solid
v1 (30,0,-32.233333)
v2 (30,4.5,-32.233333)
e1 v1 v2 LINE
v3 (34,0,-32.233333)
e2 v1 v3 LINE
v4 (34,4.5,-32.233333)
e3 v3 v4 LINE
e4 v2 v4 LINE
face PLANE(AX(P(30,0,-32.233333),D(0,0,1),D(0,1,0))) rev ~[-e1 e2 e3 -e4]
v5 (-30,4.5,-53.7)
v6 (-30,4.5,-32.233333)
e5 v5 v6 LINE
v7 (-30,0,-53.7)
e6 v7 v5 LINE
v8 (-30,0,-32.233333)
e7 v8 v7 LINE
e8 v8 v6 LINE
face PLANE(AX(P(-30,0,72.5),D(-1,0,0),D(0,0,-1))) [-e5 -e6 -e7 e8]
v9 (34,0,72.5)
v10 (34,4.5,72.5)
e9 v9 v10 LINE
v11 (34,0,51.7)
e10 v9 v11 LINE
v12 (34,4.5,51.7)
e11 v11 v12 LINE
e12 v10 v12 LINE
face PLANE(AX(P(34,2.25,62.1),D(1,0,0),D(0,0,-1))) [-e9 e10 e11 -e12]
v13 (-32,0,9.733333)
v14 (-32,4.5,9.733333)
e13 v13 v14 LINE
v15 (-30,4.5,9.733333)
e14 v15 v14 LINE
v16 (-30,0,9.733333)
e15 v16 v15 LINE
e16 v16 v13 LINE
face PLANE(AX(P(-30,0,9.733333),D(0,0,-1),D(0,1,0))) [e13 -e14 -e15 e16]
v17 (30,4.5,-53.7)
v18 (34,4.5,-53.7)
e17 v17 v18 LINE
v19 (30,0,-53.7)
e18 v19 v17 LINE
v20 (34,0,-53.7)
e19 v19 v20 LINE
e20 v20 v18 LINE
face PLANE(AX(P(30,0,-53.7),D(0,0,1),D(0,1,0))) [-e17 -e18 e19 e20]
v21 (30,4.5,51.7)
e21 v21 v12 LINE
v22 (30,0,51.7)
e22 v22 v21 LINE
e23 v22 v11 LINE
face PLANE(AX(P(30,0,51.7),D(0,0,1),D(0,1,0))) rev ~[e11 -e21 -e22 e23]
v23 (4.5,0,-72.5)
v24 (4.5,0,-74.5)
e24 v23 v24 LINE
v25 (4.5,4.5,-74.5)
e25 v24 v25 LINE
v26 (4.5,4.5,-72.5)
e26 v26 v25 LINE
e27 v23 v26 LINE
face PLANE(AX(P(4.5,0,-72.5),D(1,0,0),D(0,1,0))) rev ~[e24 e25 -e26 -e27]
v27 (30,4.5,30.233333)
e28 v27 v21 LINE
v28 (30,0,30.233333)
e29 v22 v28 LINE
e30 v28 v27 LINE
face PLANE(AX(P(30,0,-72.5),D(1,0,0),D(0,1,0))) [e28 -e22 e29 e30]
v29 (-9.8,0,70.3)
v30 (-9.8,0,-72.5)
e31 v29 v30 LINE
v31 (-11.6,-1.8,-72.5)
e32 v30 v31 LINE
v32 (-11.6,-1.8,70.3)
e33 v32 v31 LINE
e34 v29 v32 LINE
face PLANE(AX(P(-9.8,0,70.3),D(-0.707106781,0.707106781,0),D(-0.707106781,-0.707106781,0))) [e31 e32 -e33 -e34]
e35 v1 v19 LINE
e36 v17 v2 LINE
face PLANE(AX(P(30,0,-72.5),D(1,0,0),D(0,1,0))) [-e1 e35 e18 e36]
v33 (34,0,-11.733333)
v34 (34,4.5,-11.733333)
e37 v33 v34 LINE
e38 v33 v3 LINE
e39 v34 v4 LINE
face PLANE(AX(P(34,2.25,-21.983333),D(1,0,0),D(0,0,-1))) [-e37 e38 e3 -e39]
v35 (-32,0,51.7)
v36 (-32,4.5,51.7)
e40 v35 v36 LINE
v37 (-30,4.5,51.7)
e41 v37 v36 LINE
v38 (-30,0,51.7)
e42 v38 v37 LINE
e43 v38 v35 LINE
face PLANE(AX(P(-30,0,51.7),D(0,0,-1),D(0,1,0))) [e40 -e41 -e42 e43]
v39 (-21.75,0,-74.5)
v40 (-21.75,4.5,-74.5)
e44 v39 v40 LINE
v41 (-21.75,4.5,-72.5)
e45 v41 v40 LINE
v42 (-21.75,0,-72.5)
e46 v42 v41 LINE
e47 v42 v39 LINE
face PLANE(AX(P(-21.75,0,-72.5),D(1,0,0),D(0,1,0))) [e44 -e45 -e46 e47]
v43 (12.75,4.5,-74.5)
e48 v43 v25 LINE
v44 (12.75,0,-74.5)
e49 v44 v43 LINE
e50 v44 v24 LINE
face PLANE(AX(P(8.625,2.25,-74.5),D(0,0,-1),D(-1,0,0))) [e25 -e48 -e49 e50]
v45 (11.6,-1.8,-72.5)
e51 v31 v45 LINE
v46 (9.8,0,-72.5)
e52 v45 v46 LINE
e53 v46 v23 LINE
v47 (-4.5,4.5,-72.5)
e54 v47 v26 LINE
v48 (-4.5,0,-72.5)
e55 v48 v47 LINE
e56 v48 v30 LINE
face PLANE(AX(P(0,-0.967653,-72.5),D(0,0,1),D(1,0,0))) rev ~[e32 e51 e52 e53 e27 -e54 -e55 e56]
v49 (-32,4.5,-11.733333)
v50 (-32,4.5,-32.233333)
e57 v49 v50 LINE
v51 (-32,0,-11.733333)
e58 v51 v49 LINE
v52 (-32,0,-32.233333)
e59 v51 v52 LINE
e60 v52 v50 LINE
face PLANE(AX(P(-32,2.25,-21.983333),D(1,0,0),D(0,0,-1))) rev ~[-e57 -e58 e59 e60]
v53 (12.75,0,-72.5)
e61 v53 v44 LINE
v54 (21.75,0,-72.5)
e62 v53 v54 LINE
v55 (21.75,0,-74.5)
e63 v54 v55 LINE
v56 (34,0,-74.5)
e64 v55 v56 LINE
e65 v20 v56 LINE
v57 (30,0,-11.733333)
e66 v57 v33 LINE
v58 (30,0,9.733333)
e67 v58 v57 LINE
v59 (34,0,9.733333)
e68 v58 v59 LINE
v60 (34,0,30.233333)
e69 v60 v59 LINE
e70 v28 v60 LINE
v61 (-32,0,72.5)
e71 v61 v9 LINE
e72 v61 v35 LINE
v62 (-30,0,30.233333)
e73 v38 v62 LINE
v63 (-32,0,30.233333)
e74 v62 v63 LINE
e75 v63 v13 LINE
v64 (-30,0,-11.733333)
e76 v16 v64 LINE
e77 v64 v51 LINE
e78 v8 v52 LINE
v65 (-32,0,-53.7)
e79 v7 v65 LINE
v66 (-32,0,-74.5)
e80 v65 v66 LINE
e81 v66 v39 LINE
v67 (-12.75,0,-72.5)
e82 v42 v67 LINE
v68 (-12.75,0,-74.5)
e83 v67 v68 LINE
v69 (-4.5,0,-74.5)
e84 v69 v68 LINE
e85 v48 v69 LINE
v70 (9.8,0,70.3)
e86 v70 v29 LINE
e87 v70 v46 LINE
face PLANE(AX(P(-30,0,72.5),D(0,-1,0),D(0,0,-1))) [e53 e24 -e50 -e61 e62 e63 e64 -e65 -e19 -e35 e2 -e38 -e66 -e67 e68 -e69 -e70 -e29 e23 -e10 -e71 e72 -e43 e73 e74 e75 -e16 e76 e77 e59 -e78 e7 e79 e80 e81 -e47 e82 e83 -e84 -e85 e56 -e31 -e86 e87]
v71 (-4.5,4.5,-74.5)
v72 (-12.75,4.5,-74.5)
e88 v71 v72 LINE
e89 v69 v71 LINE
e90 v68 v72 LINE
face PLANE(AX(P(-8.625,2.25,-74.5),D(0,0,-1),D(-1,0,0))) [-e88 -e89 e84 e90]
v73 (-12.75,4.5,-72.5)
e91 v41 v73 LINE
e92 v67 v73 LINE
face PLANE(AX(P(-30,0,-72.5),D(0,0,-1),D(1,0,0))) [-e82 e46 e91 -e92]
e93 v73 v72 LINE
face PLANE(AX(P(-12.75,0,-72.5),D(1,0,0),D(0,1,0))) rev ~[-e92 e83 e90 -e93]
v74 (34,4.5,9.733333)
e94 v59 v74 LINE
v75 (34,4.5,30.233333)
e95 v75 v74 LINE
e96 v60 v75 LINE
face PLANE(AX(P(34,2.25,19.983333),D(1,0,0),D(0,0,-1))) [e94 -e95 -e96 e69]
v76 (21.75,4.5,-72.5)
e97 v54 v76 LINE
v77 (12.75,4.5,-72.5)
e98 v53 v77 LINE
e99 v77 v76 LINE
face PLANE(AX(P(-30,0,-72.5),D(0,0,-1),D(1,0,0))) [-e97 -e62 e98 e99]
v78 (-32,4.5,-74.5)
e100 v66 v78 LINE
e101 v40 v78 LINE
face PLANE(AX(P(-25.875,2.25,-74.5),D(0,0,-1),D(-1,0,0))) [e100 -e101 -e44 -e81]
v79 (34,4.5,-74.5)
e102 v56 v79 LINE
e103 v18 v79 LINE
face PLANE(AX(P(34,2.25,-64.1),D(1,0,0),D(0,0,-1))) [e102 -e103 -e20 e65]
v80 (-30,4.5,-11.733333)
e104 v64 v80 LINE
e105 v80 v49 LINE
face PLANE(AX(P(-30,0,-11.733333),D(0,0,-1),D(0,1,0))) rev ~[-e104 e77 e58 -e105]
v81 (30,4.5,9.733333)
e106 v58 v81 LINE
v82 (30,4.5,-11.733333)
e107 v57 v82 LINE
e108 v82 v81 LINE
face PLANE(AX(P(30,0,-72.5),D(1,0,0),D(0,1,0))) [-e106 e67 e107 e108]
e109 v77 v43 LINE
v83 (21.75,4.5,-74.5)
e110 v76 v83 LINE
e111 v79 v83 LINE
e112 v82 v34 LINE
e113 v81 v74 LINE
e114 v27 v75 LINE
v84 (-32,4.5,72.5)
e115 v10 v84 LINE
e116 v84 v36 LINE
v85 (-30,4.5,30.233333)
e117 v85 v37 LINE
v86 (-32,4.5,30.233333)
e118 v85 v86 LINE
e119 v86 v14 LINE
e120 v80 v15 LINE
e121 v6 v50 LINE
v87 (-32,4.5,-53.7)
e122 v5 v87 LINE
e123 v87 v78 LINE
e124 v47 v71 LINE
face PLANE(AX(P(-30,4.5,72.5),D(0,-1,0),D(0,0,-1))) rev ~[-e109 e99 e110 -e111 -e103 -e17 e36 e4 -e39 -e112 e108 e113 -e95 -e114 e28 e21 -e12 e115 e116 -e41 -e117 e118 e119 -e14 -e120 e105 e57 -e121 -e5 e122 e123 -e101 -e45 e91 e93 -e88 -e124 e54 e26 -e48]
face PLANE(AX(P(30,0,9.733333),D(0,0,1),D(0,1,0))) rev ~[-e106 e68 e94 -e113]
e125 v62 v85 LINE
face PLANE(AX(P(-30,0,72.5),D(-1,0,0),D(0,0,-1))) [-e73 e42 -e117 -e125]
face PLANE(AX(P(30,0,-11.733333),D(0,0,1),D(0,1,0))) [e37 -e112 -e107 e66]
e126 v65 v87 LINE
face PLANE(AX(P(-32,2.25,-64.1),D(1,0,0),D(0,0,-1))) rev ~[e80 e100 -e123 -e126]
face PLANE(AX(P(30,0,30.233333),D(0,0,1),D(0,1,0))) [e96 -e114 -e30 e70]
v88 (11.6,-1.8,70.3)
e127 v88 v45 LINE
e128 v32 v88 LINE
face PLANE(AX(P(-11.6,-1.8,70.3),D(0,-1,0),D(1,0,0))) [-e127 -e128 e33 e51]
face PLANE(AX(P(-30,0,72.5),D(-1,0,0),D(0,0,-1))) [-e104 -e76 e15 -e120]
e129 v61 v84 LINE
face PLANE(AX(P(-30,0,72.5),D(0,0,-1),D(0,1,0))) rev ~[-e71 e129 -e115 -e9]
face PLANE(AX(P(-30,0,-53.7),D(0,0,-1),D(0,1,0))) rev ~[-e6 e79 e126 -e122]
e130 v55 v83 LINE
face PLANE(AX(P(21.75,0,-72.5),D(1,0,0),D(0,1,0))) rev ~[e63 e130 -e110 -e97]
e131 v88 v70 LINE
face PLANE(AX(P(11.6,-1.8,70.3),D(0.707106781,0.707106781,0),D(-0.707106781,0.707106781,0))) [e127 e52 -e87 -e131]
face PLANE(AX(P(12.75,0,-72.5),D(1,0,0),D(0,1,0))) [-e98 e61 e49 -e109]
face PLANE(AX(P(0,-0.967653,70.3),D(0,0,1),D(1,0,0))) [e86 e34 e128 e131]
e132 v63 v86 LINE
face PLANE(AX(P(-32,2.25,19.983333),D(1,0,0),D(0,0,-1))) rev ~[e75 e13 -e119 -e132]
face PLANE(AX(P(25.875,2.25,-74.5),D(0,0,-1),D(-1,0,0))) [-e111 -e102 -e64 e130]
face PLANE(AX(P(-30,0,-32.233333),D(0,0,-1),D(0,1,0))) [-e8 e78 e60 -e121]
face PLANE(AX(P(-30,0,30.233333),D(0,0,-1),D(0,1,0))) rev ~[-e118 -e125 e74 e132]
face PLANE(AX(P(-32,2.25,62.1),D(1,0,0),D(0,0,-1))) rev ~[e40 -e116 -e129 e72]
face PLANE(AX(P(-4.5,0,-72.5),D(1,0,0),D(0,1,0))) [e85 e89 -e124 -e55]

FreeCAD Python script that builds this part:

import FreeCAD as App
import Part
import Sketcher
from FreeCAD import Vector
Q = App.Units.Quantity

doc = App.newDocument("Part")
body = doc.addObject("PartDesign::Body", "Body")

sketch1 = body.newObject("Sketcher::SketchObject", "Sketch")
sketch1.AttachmentSupport = (doc.getObject("XZ_Plane"), [""])
sketch1.MapMode = "FlatFace"
sketch1.addGeometry([
    Part.LineSegment(Vector(-30, -72.5, 0), Vector(-30, 72.5, 0)),
    Part.LineSegment(Vector(-30, 72.5, 0), Vector(30, 72.5, 0)),
    Part.LineSegment(Vector(30, 72.5, 0), Vector(30, -72.5, 0)),
    Part.LineSegment(Vector(30, -72.5, 0), Vector(-30, -72.5, 0)),
], False)
sketch1.addConstraint([
    Sketcher.Constraint("Coincident", 0, 2, 1, 1),
    Sketcher.Constraint("Coincident", 1, 2, 2, 1),
    Sketcher.Constraint("Coincident", 2, 2, 3, 1),
    Sketcher.Constraint("Coincident", 3, 2, 0, 1),
    Sketcher.Constraint("Vertical", 0),
    Sketcher.Constraint("Horizontal", 1),
    Sketcher.Constraint("Vertical", 2),
    Sketcher.Constraint("Horizontal", 3),
    Sketcher.Constraint("Symmetric", 0, 2, 2, 2, -1, 1),
    Sketcher.Constraint("DistanceX", 1, 1, 1, 2, Q("60 mm")),
    Sketcher.Constraint("DistanceY", 0, 1, 0, 2, Q("145 mm")),
])
pad1 = body.newObject("PartDesign::Pad", "Pad")
pad1.Profile = sketch1
pad1.Length = 4.5
pad1.Reversed = True

sketch2 = body.newObject("Sketcher::SketchObject", "Sketch001")
sketch2.AttachmentSupport = (doc.getObject("XY_Plane"), [""])
sketch2.MapMode = "FlatFace"
sketch2.AttachmentOffset = App.Placement(Vector(0, 0, -72.5), App.Rotation())
sketch2.addGeometry([
    Part.LineSegment(Vector(30, 4.5, 0), Vector(30, 0, 0)),
    Part.LineSegment(Vector(30, 0, 0), Vector(21.75, 0, 0)),
    Part.LineSegment(Vector(21.75, 0, 0), Vector(21.75, 4.5, 0)),
    Part.LineSegment(Vector(21.75, 4.5, 0), Vector(30, 4.5, 0)),
    Part.LineSegment(Vector(12.75, 4.5, 0), Vector(12.75, 0, 0)),
    Part.LineSegment(Vector(12.75, 0, 0), Vector(4.5, 0, 0)),
    Part.LineSegment(Vector(4.5, 0, 0), Vector(4.5, 4.5, 0)),
    Part.LineSegment(Vector(4.5, 4.5, 0), Vector(12.75, 4.5, 0)),
    Part.LineSegment(Vector(-4.5, 4.5, 0), Vector(-4.5, 0, 0)),
    Part.LineSegment(Vector(-4.5, 0, 0), Vector(-12.75, 0, 0)),
    Part.LineSegment(Vector(-12.75, 0, 0), Vector(-12.75, 4.5, 0)),
    Part.LineSegment(Vector(-12.75, 4.5, 0), Vector(-4.5, 4.5, 0)),
    Part.LineSegment(Vector(-21.75, 4.5, 0), Vector(-21.75, 0, 0)),
    Part.LineSegment(Vector(-21.75, 0, 0), Vector(-30, 0, 0)),
    Part.LineSegment(Vector(-30, 0, 0), Vector(-30, 4.5, 0)),
    Part.LineSegment(Vector(-30, 4.5, 0), Vector(-21.75, 4.5, 0)),
], False)
sketch2.addConstraint([
    Sketcher.Constraint("Coincident", 0, 2, 1, 1),
    Sketcher.Constraint("Coincident", 1, 2, 2, 1),
    Sketcher.Constraint("Coincident", 2, 2, 3, 1),
    Sketcher.Constraint("Coincident", 3, 2, 0, 1),
    Sketcher.Constraint("Coincident", 4, 2, 5, 1),
    Sketcher.Constraint("Coincident", 5, 2, 6, 1),
    Sketcher.Constraint("Coincident", 6, 2, 7, 1),
    Sketcher.Constraint("Coincident", 7, 2, 4, 1),
    Sketcher.Constraint("Coincident", 8, 2, 9, 1),
    Sketcher.Constraint("Coincident", 9, 2, 10, 1),
    Sketcher.Constraint("Coincident", 10, 2, 11, 1),
    Sketcher.Constraint("Coincident", 11, 2, 8, 1),
    Sketcher.Constraint("Coincident", 12, 2, 13, 1),
    Sketcher.Constraint("Coincident", 13, 2, 14, 1),
    Sketcher.Constraint("Coincident", 14, 2, 15, 1),
    Sketcher.Constraint("Coincident", 15, 2, 12, 1),
    Sketcher.Constraint("Vertical", 0),
    Sketcher.Constraint("Horizontal", 1),
    Sketcher.Constraint("Vertical", 2),
    Sketcher.Constraint("Horizontal", 3),
    Sketcher.Constraint("Vertical", 4),
    Sketcher.Constraint("Horizontal", 5),
    Sketcher.Constraint("Vertical", 6),
    Sketcher.Constraint("Horizontal", 7),
    Sketcher.Constraint("Vertical", 8),
    Sketcher.Constraint("Horizontal", 9),
    Sketcher.Constraint("Vertical", 10),
    Sketcher.Constraint("Horizontal", 11),
    Sketcher.Constraint("Vertical", 12),
    Sketcher.Constraint("Horizontal", 13),
    Sketcher.Constraint("Vertical", 14),
    Sketcher.Constraint("Horizontal", 15),
    Sketcher.Constraint("Symmetric", 5, 2, 8, 2, -1, 1),
    Sketcher.Constraint("Symmetric", 1, 2, 12, 2, -1, 1),
    Sketcher.Constraint("Symmetric", 4, 2, 9, 2, -2),
    Sketcher.Constraint("Symmetric", 0, 2, 13, 2, -2),
    Sketcher.Constraint("Horizontal", 3, 2, 6, 2),
    Sketcher.Constraint("Horizontal", 7, 2, 10, 2),
    Sketcher.Constraint("Horizontal", 11, 2, 14, 2),
    Sketcher.Constraint("Equal", 3, 5),
    Sketcher.Constraint("DistanceY", 0, 2, 0, 1, Q("4.5 mm")),
    Sketcher.Constraint("DistanceX", -1, 1, 0, 2, Q("30 mm")),
    Sketcher.Constraint("DistanceX", 4, 2, 1, 2, Q("9 mm")),
    Sketcher.Constraint("DistanceX", 8, 2, 5, 2, Q("9 mm")),
])
pad2 = body.newObject("PartDesign::Pad", "Pad001")
pad2.Profile = sketch2
pad2.Length = 2
pad2.Reversed = True

sketch3 = body.newObject("Sketcher::SketchObject", "Sketch002")
sketch3.AttachmentSupport = (doc.getObject("YZ_Plane"), [""])
sketch3.MapMode = "FlatFace"
sketch3.AttachmentOffset = App.Placement(Vector(0, 0, 30), App.Rotation())
sketch3.addGeometry([
    Part.LineSegment(Vector(4.5, 72.5, 0), Vector(0, 72.5, 0)),
    Part.LineSegment(Vector(0, 72.5, 0), Vector(0, 51.7, 0)),
    Part.LineSegment(Vector(0, 51.7, 0), Vector(4.5, 51.7, 0)),
    Part.LineSegment(Vector(4.5, 51.7, 0), Vector(4.5, 72.5, 0)),
    Part.LineSegment(Vector(4.5, 30.233333, 0), Vector(0, 30.233333, 0)),
    Part.LineSegment(Vector(0, 30.233333, 0), Vector(0, 9.733333, 0)),
    Part.LineSegment(Vector(0, 9.733333, 0), Vector(4.5, 9.733333, 0)),
    Part.LineSegment(Vector(4.5, 9.733333, 0), Vector(4.5, 30.233333, 0)),
    Part.LineSegment(Vector(4.5, -11.733333, 0), Vector(0, -11.733333, 0)),
    Part.LineSegment(Vector(0, -11.733333, 0), Vector(0, -32.233333, 0)),
    Part.LineSegment(Vector(0, -32.233333, 0), Vector(4.5, -32.233333, 0)),
    Part.LineSegment(Vector(4.5, -32.233333, 0), Vector(4.5, -11.733333, 0)),
    Part.LineSegment(Vector(4.5, -53.7, 0), Vector(0, -53.7, 0)),
    Part.LineSegment(Vector(0, -53.7, 0), Vector(0, -74.5, 0)),
    Part.LineSegment(Vector(0, -74.5, 0), Vector(4.5, -74.5, 0)),
    Part.LineSegment(Vector(4.5, -74.5, 0), Vector(4.5, -53.7, 0)),
], False)
sketch3.addConstraint([
    Sketcher.Constraint("Coincident", 0, 2, 1, 1),
    Sketcher.Constraint("Coincident", 1, 2, 2, 1),
    Sketcher.Constraint("Coincident", 2, 2, 3, 1),
    Sketcher.Constraint("Coincident", 3, 2, 0, 1),
    Sketcher.Constraint("Coincident", 4, 2, 5, 1),
    Sketcher.Constraint("Coincident", 5, 2, 6, 1),
    Sketcher.Constraint("Coincident", 6, 2, 7, 1),
    Sketcher.Constraint("Coincident", 7, 2, 4, 1),
    Sketcher.Constraint("Coincident", 8, 2, 9, 1),
    Sketcher.Constraint("Coincident", 9, 2, 10, 1),
    Sketcher.Constraint("Coincident", 10, 2, 11, 1),
    Sketcher.Constraint("Coincident", 11, 2, 8, 1),
    Sketcher.Constraint("Coincident", 12, 2, 13, 1),
    Sketcher.Constraint("Coincident", 13, 2, 14, 1),
    Sketcher.Constraint("Coincident", 14, 2, 15, 1),
    Sketcher.Constraint("Coincident", 15, 2, 12, 1),
    Sketcher.Constraint("Horizontal", 0),
    Sketcher.Constraint("Vertical", 1),
    Sketcher.Constraint("Horizontal", 2),
    Sketcher.Constraint("Vertical", 3),
    Sketcher.Constraint("Horizontal", 4),
    Sketcher.Constraint("Vertical", 5),
    Sketcher.Constraint("Horizontal", 6),
    Sketcher.Constraint("Vertical", 7),
    Sketcher.Constraint("Horizontal", 8),
    Sketcher.Constraint("Vertical", 9),
    Sketcher.Constraint("Horizontal", 10),
    Sketcher.Constraint("Vertical", 11),
    Sketcher.Constraint("Horizontal", 12),
    Sketcher.Constraint("Vertical", 13),
    Sketcher.Constraint("Horizontal", 14),
    Sketcher.Constraint("Vertical", 15),
    Sketcher.Constraint("PointOnObject", 0, 2, -2),
    Sketcher.Constraint("PointOnObject", 4, 2, -2),
    Sketcher.Constraint("PointOnObject", 8, 2, -2),
    Sketcher.Constraint("PointOnObject", 12, 2, -2),
    Sketcher.Constraint("Vertical", 3, 2, 6, 2),
    Sketcher.Constraint("Vertical", 7, 2, 10, 2),
    Sketcher.Constraint("Vertical", 11, 2, 14, 2),
    Sketcher.Constraint("Equal", 7, 9),
    Sketcher.Constraint("Equal", 3, 13),
    Sketcher.Constraint("DistanceX", 0, 2, 0, 1, Q("4.5 mm")),
    Sketcher.Constraint("DistanceY", 1, 2, 1, 1, Q("20.8 mm")),
    Sketcher.Constraint("DistanceY", 5, 2, 5, 1, Q("20.5 mm")),
    Sketcher.Constraint("DistanceY", -1, 1, 0, 2, Q("72.5 mm")),
    Sketcher.Constraint("DistanceY", 12, 2, -1, 1, Q("53.7 mm")),
    Sketcher.Constraint("DistanceY", -1, 1, 4, 2, Q("30.233333 mm")),
    Sketcher.Constraint("DistanceY", 8, 2, -1, 1, Q("11.733333 mm")),
])
pad3 = body.newObject("PartDesign::Pad", "Pad002")
pad3.Profile = sketch3
pad3.Length = 4

sketch4 = body.newObject("Sketcher::SketchObject", "Sketch003")
sketch4.AttachmentSupport = (doc.getObject("YZ_Plane"), [""])
sketch4.MapMode = "FlatFace"
sketch4.AttachmentOffset = App.Placement(Vector(0, 0, -30), App.Rotation())
sketch4.addGeometry([
    Part.LineSegment(Vector(4.5, 72.5, 0), Vector(0, 72.5, 0)),
    Part.LineSegment(Vector(0, 72.5, 0), Vector(0, 51.7, 0)),
    Part.LineSegment(Vector(0, 51.7, 0), Vector(4.5, 51.7, 0)),
    Part.LineSegment(Vector(4.5, 51.7, 0), Vector(4.5, 72.5, 0)),
    Part.LineSegment(Vector(4.5, 30.233333, 0), Vector(0, 30.233333, 0)),
    Part.LineSegment(Vector(0, 30.233333, 0), Vector(0, 9.733333, 0)),
    Part.LineSegment(Vector(0, 9.733333, 0), Vector(4.5, 9.733333, 0)),
    Part.LineSegment(Vector(4.5, 9.733333, 0), Vector(4.5, 30.233333, 0)),
    Part.LineSegment(Vector(4.5, -11.733333, 0), Vector(0, -11.733333, 0)),
    Part.LineSegment(Vector(0, -11.733333, 0), Vector(0, -32.233333, 0)),
    Part.LineSegment(Vector(0, -32.233333, 0), Vector(4.5, -32.233333, 0)),
    Part.LineSegment(Vector(4.5, -32.233333, 0), Vector(4.5, -11.733333, 0)),
    Part.LineSegment(Vector(4.5, -53.7, 0), Vector(0, -53.7, 0)),
    Part.LineSegment(Vector(0, -53.7, 0), Vector(0, -74.5, 0)),
    Part.LineSegment(Vector(0, -74.5, 0), Vector(4.5, -74.5, 0)),
    Part.LineSegment(Vector(4.5, -74.5, 0), Vector(4.5, -53.7, 0)),
], False)
sketch4.addConstraint([
    Sketcher.Constraint("Coincident", 0, 2, 1, 1),
    Sketcher.Constraint("Coincident", 1, 2, 2, 1),
    Sketcher.Constraint("Coincident", 2, 2, 3, 1),
    Sketcher.Constraint("Coincident", 3, 2, 0, 1),
    Sketcher.Constraint("Coincident", 4, 2, 5, 1),
    Sketcher.Constraint("Coincident", 5, 2, 6, 1),
    Sketcher.Constraint("Coincident", 6, 2, 7, 1),
    Sketcher.Constraint("Coincident", 7, 2, 4, 1),
    Sketcher.Constraint("Coincident", 8, 2, 9, 1),
    Sketcher.Constraint("Coincident", 9, 2, 10, 1),
    Sketcher.Constraint("Coincident", 10, 2, 11, 1),
    Sketcher.Constraint("Coincident", 11, 2, 8, 1),
    Sketcher.Constraint("Coincident", 12, 2, 13, 1),
    Sketcher.Constraint("Coincident", 13, 2, 14, 1),
    Sketcher.Constraint("Coincident", 14, 2, 15, 1),
    Sketcher.Constraint("Coincident", 15, 2, 12, 1),
    Sketcher.Constraint("Horizontal", 0),
    Sketcher.Constraint("Vertical", 1),
    Sketcher.Constraint("Horizontal", 2),
    Sketcher.Constraint("Vertical", 3),
    Sketcher.Constraint("Horizontal", 4),
    Sketcher.Constraint("Vertical", 5),
    Sketcher.Constraint("Horizontal", 6),
    Sketcher.Constraint("Vertical", 7),
    Sketcher.Constraint("Horizontal", 8),
    Sketcher.Constraint("Vertical", 9),
    Sketcher.Constraint("Horizontal", 10),
    Sketcher.Constraint("Vertical", 11),
    Sketcher.Constraint("Horizontal", 12),
    Sketcher.Constraint("Vertical", 13),
    Sketcher.Constraint("Horizontal", 14),
    Sketcher.Constraint("Vertical", 15),
    Sketcher.Constraint("PointOnObject", 0, 2, -2),
    Sketcher.Constraint("PointOnObject", 4, 2, -2),
    Sketcher.Constraint("PointOnObject", 8, 2, -2),
    Sketcher.Constraint("PointOnObject", 12, 2, -2),
    Sketcher.Constraint("Vertical", 3, 2, 6, 2),
    Sketcher.Constraint("Vertical", 7, 2, 10, 2),
    Sketcher.Constraint("Vertical", 11, 2, 14, 2),
    Sketcher.Constraint("Equal", 7, 9),
    Sketcher.Constraint("Equal", 3, 13),
    Sketcher.Constraint("DistanceX", 0, 2, 0, 1, Q("4.5 mm")),
    Sketcher.Constraint("DistanceY", 1, 2, 1, 1, Q("20.8 mm")),
    Sketcher.Constraint("DistanceY", 5, 2, 5, 1, Q("20.5 mm")),
    Sketcher.Constraint("DistanceY", -1, 1, 0, 2, Q("72.5 mm")),
    Sketcher.Constraint("DistanceY", 12, 2, -1, 1, Q("53.7 mm")),
    Sketcher.Constraint("DistanceY", -1, 1, 4, 2, Q("30.233333 mm")),
    Sketcher.Constraint("DistanceY", 8, 2, -1, 1, Q("11.733333 mm")),
])
pad4 = body.newObject("PartDesign::Pad", "Pad003")
pad4.Profile = sketch4
pad4.Length = 2
pad4.Reversed = True

sketch5 = body.newObject("Sketcher::SketchObject", "Sketch004")
sketch5.AttachmentSupport = (doc.getObject("XY_Plane"), [""])
sketch5.MapMode = "FlatFace"
sketch5.AttachmentOffset = App.Placement(Vector(0, 0, 70.3), App.Rotation())
sketch5.addGeometry([
    Part.LineSegment(Vector(-9.8, 0, 0), Vector(-11.6, -1.8, 0)),
    Part.LineSegment(Vector(-11.6, -1.8, 0), Vector(11.6, -1.8, 0)),
    Part.LineSegment(Vector(11.6, -1.8, 0), Vector(9.8, 0, 0)),
    Part.LineSegment(Vector(9.8, 0, 0), Vector(-9.8, 0, 0)),
], False)
sketch5.addConstraint([
    Sketcher.Constraint("Coincident", 0, 2, 1, 1),
    Sketcher.Constraint("Coincident", 1, 2, 2, 1),
    Sketcher.Constraint("Coincident", 2, 2, 3, 1),
    Sketcher.Constraint("Coincident", 3, 2, 0, 1),
    Sketcher.Constraint("Horizontal", 1),
    Sketcher.Constraint("Horizontal", 3),
    Sketcher.Constraint("Symmetric", 2, 2, 3, 2, -1, 1),
    Sketcher.Constraint("Perpendicular", 0, 2),
    Sketcher.Constraint("Equal", 0, 2),
    Sketcher.Constraint("DistanceX", 1, 1, 1, 2, Q("23.2 mm")),
    Sketcher.Constraint("DistanceX", 3, 2, 3, 1, Q("19.6 mm")),
])
pad5 = body.newObject("PartDesign::Pad", "Pad004")
pad5.Profile = sketch5
pad5.Length = 142.8
pad5.Reversed = True

doc.recompute()
